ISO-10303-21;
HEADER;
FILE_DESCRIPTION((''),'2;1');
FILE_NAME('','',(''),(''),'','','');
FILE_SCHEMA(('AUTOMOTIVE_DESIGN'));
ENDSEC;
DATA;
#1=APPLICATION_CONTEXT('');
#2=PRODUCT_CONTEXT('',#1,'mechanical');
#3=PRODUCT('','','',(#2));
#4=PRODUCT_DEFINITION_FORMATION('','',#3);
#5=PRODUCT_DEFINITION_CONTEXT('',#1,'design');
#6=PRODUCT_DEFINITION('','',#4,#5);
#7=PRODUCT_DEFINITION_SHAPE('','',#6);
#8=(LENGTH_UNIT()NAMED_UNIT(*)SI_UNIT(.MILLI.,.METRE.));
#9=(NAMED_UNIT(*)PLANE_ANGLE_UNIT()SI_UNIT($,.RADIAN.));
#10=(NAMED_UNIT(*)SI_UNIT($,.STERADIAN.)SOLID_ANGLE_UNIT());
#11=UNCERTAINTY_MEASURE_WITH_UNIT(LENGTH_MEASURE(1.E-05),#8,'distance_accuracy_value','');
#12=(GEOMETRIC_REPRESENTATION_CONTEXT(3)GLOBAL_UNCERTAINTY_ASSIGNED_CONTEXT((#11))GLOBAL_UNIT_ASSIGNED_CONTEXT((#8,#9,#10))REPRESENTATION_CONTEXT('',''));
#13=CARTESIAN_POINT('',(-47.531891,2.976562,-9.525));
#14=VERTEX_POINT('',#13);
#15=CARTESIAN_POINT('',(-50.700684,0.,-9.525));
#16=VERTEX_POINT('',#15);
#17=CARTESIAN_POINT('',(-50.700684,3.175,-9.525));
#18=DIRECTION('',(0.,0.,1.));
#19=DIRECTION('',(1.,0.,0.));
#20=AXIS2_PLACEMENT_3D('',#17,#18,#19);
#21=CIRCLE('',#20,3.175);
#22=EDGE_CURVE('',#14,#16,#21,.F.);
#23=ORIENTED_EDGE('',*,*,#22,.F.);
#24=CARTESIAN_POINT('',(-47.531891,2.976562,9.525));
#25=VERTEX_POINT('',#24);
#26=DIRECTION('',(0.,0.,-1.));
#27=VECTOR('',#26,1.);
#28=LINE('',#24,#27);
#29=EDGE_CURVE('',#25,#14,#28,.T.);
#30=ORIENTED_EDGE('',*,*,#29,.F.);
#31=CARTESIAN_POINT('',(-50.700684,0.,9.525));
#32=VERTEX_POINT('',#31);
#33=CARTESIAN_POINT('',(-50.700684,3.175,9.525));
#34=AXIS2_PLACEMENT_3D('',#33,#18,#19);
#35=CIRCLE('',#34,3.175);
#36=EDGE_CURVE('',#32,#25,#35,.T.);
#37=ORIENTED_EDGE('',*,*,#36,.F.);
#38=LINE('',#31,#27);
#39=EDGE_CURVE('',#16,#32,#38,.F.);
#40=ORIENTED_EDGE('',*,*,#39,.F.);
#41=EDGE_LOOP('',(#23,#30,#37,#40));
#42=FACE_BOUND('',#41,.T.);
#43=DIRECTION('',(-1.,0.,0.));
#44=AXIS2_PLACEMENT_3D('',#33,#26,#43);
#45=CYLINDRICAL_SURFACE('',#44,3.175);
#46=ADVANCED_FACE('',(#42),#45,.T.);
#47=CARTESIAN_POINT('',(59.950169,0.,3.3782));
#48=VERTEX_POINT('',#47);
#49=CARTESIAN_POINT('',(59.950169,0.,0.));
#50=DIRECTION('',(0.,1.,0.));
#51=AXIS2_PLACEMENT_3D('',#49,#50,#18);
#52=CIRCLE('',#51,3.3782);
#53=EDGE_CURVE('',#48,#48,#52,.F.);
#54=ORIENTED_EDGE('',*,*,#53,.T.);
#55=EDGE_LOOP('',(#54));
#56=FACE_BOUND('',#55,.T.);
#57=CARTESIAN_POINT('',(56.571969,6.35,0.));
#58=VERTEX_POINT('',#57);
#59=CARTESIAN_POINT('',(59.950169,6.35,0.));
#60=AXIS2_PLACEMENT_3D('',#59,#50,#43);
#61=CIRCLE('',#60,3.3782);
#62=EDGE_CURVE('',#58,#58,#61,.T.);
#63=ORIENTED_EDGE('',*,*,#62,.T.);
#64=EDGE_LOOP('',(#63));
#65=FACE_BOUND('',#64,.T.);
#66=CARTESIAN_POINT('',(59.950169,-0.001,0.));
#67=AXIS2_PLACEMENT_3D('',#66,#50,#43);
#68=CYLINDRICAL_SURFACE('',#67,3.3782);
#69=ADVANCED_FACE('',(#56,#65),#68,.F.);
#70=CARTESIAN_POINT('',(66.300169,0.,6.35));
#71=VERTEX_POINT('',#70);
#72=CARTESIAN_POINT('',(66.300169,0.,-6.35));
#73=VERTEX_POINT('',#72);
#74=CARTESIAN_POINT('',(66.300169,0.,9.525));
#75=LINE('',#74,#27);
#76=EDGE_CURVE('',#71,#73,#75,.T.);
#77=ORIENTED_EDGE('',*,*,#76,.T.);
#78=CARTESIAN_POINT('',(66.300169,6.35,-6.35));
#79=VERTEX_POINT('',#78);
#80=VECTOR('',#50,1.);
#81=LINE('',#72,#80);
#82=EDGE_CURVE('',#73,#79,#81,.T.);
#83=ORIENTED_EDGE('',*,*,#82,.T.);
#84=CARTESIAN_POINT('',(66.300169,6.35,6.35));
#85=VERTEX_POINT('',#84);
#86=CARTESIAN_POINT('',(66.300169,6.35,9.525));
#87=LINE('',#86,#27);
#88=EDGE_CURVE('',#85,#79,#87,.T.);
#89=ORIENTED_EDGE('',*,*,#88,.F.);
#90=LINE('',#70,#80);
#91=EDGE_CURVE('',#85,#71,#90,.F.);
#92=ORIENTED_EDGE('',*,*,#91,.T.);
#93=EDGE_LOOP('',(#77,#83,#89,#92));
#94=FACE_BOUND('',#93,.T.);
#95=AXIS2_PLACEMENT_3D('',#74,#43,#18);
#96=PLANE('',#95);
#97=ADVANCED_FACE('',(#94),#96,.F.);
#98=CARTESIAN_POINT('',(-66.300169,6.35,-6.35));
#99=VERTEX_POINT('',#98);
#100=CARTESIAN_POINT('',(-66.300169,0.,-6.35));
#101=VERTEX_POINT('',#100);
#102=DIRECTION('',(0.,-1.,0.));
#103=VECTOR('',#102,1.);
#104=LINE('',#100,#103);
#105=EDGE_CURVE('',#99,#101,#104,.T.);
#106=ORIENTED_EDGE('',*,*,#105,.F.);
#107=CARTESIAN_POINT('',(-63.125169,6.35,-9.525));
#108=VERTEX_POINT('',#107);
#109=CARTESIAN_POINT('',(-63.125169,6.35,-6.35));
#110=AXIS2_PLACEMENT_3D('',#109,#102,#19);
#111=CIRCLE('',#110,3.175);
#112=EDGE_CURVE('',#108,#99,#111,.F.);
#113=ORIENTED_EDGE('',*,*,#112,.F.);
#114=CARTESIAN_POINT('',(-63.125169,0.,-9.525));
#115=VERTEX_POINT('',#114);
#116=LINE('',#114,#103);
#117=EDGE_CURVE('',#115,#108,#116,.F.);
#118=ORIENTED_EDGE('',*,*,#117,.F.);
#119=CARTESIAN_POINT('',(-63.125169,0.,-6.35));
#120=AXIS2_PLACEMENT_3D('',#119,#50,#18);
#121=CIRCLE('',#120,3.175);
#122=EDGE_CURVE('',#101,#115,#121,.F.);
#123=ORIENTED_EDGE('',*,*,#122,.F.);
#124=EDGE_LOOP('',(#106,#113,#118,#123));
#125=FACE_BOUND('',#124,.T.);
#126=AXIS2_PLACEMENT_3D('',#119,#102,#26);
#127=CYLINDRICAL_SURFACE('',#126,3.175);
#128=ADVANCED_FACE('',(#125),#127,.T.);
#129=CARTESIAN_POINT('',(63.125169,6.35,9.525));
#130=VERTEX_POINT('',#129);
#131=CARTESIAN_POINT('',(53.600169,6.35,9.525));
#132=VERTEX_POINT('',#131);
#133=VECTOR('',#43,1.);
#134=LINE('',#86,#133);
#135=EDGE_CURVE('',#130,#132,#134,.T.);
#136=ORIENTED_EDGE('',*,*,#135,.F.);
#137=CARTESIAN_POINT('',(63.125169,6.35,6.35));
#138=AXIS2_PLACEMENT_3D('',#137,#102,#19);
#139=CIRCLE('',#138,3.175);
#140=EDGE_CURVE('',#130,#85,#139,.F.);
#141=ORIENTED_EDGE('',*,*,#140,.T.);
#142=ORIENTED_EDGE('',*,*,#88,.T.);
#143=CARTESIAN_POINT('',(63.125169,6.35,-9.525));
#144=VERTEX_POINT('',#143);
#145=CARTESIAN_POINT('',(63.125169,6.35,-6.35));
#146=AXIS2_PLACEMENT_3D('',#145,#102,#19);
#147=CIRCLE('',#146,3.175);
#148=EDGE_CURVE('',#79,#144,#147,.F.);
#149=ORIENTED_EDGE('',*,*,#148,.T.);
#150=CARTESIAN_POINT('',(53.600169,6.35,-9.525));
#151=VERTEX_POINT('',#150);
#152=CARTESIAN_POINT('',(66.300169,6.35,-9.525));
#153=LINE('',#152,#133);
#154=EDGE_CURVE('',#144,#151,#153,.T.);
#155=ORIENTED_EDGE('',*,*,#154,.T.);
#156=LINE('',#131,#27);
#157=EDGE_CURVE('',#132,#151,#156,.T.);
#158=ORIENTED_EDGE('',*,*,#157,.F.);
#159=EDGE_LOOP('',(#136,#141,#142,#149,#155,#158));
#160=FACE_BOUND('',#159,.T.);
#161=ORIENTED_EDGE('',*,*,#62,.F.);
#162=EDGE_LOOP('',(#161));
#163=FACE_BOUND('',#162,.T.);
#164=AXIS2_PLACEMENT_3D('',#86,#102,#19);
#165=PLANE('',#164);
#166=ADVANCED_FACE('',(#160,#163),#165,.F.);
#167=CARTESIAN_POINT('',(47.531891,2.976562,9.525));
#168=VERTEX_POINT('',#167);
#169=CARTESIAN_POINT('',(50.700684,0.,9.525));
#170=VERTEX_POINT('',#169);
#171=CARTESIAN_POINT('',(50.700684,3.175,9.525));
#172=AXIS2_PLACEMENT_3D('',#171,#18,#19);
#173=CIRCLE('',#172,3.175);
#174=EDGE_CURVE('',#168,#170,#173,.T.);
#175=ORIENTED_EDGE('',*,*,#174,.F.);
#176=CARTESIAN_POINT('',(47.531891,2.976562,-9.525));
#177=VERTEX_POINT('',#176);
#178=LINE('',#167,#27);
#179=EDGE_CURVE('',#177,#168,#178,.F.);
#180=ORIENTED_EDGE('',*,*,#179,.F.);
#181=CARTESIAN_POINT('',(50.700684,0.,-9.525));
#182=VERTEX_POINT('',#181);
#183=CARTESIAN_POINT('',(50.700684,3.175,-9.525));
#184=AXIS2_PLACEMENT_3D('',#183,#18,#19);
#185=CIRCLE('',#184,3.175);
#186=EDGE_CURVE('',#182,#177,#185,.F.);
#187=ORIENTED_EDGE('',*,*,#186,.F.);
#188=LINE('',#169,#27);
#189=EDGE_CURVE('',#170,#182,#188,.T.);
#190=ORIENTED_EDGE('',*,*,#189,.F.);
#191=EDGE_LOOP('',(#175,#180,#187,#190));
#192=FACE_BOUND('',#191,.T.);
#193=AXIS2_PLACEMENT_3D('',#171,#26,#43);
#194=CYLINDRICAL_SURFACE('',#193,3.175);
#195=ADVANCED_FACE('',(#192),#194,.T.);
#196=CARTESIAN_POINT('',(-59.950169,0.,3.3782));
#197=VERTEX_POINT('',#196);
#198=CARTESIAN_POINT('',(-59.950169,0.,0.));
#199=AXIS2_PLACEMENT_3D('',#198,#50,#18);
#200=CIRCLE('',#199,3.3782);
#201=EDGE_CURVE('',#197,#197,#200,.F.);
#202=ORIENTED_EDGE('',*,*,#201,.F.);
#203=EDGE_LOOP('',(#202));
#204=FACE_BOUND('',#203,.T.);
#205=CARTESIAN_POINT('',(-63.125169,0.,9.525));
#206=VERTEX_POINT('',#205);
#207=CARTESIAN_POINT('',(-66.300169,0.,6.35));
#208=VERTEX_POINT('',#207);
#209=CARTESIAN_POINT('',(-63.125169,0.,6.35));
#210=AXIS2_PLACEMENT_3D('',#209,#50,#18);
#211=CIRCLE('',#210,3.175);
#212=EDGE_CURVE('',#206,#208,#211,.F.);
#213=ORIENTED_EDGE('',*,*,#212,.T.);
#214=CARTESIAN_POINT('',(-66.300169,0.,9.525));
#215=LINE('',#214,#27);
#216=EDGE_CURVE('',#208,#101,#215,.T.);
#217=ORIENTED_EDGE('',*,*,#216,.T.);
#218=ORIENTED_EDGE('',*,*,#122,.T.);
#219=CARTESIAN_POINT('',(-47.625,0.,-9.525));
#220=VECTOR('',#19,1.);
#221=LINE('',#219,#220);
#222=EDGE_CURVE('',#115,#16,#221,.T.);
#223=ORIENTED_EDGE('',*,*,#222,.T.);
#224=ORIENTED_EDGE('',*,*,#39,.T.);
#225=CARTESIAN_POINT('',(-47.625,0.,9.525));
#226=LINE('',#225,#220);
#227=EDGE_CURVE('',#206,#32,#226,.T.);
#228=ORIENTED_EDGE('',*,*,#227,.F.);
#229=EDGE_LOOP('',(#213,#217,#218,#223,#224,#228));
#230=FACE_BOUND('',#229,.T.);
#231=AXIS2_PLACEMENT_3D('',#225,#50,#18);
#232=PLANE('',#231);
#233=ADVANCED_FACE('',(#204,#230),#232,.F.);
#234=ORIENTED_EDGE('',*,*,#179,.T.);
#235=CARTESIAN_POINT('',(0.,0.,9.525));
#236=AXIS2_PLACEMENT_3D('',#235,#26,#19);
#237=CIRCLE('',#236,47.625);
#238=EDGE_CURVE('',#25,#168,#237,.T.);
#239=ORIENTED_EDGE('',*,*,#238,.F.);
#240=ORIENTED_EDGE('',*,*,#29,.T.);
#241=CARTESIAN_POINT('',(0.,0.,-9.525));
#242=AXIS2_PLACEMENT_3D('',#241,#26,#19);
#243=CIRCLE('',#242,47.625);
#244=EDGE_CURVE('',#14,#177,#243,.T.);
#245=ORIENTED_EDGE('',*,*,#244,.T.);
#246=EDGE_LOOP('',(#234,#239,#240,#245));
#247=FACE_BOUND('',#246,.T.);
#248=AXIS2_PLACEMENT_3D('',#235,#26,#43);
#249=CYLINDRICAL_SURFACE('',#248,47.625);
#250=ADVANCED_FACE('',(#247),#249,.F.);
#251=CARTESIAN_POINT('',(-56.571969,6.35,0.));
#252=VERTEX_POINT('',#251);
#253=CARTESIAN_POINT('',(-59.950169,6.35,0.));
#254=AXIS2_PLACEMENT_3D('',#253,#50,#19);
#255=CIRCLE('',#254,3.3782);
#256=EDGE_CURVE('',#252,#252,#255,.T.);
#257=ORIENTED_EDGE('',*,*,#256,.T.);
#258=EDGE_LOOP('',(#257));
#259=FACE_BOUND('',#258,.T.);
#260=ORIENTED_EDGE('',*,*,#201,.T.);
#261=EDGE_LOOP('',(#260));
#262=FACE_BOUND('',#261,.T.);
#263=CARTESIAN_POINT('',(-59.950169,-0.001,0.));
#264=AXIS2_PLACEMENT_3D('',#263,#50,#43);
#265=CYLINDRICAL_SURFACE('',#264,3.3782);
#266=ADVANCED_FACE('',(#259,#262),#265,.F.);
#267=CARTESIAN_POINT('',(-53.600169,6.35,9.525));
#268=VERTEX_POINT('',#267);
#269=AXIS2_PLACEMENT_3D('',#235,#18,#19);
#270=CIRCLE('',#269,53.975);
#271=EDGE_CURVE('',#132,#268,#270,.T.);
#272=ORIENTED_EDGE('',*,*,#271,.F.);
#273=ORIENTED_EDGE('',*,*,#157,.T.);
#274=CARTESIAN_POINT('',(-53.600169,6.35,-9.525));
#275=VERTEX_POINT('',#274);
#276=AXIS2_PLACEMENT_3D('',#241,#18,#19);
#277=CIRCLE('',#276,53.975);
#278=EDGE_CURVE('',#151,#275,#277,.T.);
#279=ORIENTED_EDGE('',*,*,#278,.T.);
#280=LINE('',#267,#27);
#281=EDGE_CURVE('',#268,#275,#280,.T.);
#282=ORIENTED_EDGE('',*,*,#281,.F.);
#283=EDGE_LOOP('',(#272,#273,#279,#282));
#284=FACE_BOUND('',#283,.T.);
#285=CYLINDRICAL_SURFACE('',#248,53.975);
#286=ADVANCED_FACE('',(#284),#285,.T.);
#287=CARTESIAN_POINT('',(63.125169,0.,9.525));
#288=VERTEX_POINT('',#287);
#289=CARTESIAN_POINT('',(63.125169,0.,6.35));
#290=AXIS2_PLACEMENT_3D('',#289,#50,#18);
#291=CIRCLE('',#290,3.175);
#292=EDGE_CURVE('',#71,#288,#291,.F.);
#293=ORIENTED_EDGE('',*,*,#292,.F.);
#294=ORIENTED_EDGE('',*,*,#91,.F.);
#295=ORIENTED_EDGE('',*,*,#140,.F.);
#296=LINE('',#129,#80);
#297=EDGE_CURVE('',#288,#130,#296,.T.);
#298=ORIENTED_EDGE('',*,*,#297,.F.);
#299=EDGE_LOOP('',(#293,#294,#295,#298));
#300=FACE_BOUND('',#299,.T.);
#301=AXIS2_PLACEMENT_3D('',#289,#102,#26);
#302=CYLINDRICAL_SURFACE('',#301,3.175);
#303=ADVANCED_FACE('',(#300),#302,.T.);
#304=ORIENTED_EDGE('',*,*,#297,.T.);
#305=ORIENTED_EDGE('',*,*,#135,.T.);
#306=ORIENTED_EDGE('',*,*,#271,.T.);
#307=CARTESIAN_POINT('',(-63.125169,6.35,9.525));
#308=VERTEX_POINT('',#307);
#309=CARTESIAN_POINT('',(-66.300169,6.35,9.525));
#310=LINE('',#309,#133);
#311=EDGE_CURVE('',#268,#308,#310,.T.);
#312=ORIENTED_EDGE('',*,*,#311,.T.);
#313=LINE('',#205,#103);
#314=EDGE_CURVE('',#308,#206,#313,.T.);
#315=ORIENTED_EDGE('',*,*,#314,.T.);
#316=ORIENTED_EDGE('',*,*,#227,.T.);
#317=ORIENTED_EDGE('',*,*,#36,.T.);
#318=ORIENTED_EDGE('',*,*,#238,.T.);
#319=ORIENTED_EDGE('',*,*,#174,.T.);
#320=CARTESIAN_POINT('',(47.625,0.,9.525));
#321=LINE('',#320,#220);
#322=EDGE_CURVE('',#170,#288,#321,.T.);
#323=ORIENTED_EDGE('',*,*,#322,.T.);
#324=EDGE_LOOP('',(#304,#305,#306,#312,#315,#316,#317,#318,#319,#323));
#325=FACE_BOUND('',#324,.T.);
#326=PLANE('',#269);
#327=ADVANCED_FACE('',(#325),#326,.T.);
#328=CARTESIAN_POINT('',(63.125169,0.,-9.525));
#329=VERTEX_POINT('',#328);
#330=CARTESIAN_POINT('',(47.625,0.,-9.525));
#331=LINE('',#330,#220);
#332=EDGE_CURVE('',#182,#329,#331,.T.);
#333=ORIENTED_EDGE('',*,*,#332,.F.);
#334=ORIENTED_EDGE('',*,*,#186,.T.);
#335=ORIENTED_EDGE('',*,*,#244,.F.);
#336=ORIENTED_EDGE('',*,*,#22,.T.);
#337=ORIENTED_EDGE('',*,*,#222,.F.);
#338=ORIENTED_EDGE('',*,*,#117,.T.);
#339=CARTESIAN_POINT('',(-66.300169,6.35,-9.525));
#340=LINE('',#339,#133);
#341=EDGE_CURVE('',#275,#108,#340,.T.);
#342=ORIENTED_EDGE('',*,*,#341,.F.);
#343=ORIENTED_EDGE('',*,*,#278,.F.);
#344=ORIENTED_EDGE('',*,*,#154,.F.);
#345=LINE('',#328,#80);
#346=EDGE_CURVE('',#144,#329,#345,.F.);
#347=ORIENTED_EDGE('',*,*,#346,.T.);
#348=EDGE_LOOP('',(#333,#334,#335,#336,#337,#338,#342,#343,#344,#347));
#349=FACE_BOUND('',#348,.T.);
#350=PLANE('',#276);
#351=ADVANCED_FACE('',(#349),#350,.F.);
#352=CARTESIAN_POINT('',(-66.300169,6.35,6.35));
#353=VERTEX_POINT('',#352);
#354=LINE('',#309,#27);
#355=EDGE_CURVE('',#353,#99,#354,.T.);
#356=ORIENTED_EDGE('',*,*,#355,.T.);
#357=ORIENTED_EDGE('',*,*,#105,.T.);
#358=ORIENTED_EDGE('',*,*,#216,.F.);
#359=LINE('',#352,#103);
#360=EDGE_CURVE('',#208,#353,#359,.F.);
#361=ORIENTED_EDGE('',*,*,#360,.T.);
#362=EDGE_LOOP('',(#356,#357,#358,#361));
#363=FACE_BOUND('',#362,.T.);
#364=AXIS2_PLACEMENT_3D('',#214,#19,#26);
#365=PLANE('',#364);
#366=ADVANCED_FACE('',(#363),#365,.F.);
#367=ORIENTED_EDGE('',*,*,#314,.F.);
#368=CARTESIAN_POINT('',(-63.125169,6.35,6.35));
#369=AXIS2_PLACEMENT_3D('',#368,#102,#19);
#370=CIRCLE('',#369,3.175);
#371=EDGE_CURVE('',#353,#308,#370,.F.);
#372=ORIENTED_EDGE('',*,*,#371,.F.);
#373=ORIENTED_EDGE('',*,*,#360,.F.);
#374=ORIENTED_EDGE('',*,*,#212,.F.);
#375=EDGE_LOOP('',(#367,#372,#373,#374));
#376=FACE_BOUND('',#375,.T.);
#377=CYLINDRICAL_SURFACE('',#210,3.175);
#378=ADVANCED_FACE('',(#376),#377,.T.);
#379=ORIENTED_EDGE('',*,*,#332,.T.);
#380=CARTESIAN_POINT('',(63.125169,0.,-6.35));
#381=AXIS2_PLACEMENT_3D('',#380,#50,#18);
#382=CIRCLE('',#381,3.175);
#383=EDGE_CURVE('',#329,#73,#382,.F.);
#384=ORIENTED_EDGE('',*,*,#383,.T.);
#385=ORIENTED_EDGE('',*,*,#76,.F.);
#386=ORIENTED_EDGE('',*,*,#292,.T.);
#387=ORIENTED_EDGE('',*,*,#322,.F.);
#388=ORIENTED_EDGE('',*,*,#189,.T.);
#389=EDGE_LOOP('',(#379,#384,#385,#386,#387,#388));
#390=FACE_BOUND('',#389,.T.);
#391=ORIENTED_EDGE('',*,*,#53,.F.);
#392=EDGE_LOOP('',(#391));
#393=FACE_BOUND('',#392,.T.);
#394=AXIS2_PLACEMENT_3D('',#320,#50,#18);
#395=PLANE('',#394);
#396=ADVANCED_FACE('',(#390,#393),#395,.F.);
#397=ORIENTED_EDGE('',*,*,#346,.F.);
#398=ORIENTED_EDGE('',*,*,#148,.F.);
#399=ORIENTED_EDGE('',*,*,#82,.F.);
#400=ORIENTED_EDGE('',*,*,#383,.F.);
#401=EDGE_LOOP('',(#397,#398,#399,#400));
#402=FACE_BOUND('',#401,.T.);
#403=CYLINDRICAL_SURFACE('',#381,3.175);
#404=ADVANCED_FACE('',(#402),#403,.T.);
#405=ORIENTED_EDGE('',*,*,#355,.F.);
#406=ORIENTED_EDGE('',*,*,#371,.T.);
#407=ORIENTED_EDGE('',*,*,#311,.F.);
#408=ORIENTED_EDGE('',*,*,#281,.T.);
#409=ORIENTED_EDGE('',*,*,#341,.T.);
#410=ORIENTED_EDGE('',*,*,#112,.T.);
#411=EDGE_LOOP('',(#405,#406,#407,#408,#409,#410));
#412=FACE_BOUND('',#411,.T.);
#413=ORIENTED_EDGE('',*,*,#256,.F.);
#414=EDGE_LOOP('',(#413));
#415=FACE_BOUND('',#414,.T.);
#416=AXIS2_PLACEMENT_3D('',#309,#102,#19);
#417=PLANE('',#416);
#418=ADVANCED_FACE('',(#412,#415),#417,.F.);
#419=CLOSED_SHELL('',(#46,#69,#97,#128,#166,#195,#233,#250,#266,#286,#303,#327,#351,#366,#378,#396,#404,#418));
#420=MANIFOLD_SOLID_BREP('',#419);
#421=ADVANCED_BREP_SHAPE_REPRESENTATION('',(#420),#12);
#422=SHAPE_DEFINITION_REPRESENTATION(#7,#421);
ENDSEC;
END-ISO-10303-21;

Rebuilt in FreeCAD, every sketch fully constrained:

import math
import FreeCAD as App
import Part
import Sketcher

V = App.Vector
Q = App.Units.Quantity


def edges_at(feature, points):
    """Names of the edges that pass closest to the given points."""
    edges = feature.Shape.Edges
    near = lambda p: min(range(len(edges)), key=lambda i: edges[i].distToShape(Part.Vertex(*p))[0])
    return sorted({f"Edge{near(p) + 1}" for p in points})

doc = App.newDocument("Part")
body = doc.addObject("PartDesign::Body", "Body")

sketch1 = body.newObject("Sketcher::SketchObject", "Sketch")
sketch1.AttachmentSupport = (doc.getObject("XY_Plane"), [""])
sketch1.MapMode = "FlatFace"
sketch1.addGeometry([
    Part.LineSegment(V(48, 0, 0), V(66, 0, 0)),
    Part.LineSegment(V(66, 0, 0), V(66, 6, 0)),
    Part.LineSegment(V(66, 6, 0), V(54, 6, 0)),
    Part.ArcOfCircle(Part.Circle(V(0, 0, 0), V(0, 0, 1), 54), math.radians(7), math.radians(173)),
    Part.LineSegment(V(-54, 6, 0), V(-66, 6, 0)),
    Part.LineSegment(V(-66, 6, 0), V(-66, 0, 0)),
    Part.LineSegment(V(-66, 0, 0), V(-48, 0, 0)),
    Part.ArcOfCircle(Part.Circle(V(0, 0, 0), V(0, 0, 1), 48), math.radians(0), math.radians(180)),
], False)
sketch1.addConstraint([
    Sketcher.Constraint("Coincident", 0, 2, 1, 1),
    Sketcher.Constraint("Coincident", 1, 2, 2, 1),
    Sketcher.Constraint("Coincident", 2, 2, 3, 1),
    Sketcher.Constraint("Coincident", 3, 2, 4, 1),
    Sketcher.Constraint("Coincident", 4, 2, 5, 1),
    Sketcher.Constraint("Coincident", 5, 2, 6, 1),
    Sketcher.Constraint("Coincident", 6, 2, 7, 2),
    Sketcher.Constraint("Coincident", 7, 1, 0, 1),
    Sketcher.Constraint("Horizontal", 0),
    Sketcher.Constraint("Vertical", 1),
    Sketcher.Constraint("Horizontal", 2),
    Sketcher.Constraint("Horizontal", 4),
    Sketcher.Constraint("Vertical", 5),
    Sketcher.Constraint("Horizontal", 6),
    Sketcher.Constraint("Coincident", 3, 3, -1, 1),
    Sketcher.Constraint("Coincident", 7, 3, -1, 1),
    Sketcher.Constraint("Symmetric", 0, 2, 5, 2, -1, 1),
    Sketcher.Constraint("PointOnObject", 0, 2, -1),
    Sketcher.Constraint("Horizontal", 2, 2, 3, 2),
    Sketcher.Constraint("DistanceX", 2, 2, 2, 1, Q("0.5 in")),
    Sketcher.Constraint("Radius", 3, Q("2.125 in")),
    Sketcher.Constraint("Radius", 7, Q("1.875 in")),
    Sketcher.Constraint("DistanceY", 1, 1, 1, 2, Q("0.25 in")),
])
pad1 = body.newObject("PartDesign::Pad", "Pad")
pad1.Profile = sketch1
pad1.Length = Q("0.75 in")
pad1.Midplane = True

sketch2 = body.newObject("Sketcher::SketchObject", "Sketch001")
sketch2.AttachmentSupport = (doc.getObject("XZ_Plane"), [""])
sketch2.MapMode = "FlatFace"
sketch2.AttachmentOffset = App.Placement(V(0, 0, -0.25 * 25.4), App.Rotation())
sketch2.addGeometry(Part.Circle(V(60, 0, 0), V(0, 0, 1), 3.4), False)
sketch2.addConstraint([
    Sketcher.Constraint("PointOnObject", 0, 3, -1),
    Sketcher.Constraint("Diameter", 0, Q("0.266 in")),
    Sketcher.Constraint("DistanceX", -1, 1, 0, 3, Q("59.950169 mm")),
])
pocket1 = body.newObject("PartDesign::Pocket", "Pocket")
pocket1.Profile = sketch2
pocket1.Type = "UpToFirst"
pocket1.Reversed = True

sketch3 = body.newObject("Sketcher::SketchObject", "Sketch002")
sketch3.AttachmentSupport = (doc.getObject("XZ_Plane"), [""])
sketch3.MapMode = "FlatFace"
sketch3.AttachmentOffset = App.Placement(V(0, 0, -0.25 * 25.4), App.Rotation())
sketch3.addGeometry(Part.Circle(V(-60, 0, 0), V(0, 0, 1), 3.4), False)
sketch3.addConstraint([
    Sketcher.Constraint("PointOnObject", 0, 3, -1),
    Sketcher.Constraint("Diameter", 0, Q("0.266 in")),
    Sketcher.Constraint("DistanceX", 0, 3, -1, 1, Q("59.950169 mm")),
])
pocket2 = body.newObject("PartDesign::Pocket", "Pocket001")
pocket2.Profile = sketch3
pocket2.Type = "UpToFirst"
pocket2.Reversed = True
doc.recompute()

fillet = body.newObject("PartDesign::Fillet", "Fillet")
fillet.Base = (pocket2, edges_at(pocket2, [
    (66.3, 3.175, -9.525),
    (66.3, 3.175, 9.525),
    (-47.625, 0, 0),
    (47.625, 0, 0),
    (-66.3, 3.175, 9.525),
    (-66.3, 3.175, -9.525),
]))
fillet.Radius = Q("0.125 in")

doc.recompute()
